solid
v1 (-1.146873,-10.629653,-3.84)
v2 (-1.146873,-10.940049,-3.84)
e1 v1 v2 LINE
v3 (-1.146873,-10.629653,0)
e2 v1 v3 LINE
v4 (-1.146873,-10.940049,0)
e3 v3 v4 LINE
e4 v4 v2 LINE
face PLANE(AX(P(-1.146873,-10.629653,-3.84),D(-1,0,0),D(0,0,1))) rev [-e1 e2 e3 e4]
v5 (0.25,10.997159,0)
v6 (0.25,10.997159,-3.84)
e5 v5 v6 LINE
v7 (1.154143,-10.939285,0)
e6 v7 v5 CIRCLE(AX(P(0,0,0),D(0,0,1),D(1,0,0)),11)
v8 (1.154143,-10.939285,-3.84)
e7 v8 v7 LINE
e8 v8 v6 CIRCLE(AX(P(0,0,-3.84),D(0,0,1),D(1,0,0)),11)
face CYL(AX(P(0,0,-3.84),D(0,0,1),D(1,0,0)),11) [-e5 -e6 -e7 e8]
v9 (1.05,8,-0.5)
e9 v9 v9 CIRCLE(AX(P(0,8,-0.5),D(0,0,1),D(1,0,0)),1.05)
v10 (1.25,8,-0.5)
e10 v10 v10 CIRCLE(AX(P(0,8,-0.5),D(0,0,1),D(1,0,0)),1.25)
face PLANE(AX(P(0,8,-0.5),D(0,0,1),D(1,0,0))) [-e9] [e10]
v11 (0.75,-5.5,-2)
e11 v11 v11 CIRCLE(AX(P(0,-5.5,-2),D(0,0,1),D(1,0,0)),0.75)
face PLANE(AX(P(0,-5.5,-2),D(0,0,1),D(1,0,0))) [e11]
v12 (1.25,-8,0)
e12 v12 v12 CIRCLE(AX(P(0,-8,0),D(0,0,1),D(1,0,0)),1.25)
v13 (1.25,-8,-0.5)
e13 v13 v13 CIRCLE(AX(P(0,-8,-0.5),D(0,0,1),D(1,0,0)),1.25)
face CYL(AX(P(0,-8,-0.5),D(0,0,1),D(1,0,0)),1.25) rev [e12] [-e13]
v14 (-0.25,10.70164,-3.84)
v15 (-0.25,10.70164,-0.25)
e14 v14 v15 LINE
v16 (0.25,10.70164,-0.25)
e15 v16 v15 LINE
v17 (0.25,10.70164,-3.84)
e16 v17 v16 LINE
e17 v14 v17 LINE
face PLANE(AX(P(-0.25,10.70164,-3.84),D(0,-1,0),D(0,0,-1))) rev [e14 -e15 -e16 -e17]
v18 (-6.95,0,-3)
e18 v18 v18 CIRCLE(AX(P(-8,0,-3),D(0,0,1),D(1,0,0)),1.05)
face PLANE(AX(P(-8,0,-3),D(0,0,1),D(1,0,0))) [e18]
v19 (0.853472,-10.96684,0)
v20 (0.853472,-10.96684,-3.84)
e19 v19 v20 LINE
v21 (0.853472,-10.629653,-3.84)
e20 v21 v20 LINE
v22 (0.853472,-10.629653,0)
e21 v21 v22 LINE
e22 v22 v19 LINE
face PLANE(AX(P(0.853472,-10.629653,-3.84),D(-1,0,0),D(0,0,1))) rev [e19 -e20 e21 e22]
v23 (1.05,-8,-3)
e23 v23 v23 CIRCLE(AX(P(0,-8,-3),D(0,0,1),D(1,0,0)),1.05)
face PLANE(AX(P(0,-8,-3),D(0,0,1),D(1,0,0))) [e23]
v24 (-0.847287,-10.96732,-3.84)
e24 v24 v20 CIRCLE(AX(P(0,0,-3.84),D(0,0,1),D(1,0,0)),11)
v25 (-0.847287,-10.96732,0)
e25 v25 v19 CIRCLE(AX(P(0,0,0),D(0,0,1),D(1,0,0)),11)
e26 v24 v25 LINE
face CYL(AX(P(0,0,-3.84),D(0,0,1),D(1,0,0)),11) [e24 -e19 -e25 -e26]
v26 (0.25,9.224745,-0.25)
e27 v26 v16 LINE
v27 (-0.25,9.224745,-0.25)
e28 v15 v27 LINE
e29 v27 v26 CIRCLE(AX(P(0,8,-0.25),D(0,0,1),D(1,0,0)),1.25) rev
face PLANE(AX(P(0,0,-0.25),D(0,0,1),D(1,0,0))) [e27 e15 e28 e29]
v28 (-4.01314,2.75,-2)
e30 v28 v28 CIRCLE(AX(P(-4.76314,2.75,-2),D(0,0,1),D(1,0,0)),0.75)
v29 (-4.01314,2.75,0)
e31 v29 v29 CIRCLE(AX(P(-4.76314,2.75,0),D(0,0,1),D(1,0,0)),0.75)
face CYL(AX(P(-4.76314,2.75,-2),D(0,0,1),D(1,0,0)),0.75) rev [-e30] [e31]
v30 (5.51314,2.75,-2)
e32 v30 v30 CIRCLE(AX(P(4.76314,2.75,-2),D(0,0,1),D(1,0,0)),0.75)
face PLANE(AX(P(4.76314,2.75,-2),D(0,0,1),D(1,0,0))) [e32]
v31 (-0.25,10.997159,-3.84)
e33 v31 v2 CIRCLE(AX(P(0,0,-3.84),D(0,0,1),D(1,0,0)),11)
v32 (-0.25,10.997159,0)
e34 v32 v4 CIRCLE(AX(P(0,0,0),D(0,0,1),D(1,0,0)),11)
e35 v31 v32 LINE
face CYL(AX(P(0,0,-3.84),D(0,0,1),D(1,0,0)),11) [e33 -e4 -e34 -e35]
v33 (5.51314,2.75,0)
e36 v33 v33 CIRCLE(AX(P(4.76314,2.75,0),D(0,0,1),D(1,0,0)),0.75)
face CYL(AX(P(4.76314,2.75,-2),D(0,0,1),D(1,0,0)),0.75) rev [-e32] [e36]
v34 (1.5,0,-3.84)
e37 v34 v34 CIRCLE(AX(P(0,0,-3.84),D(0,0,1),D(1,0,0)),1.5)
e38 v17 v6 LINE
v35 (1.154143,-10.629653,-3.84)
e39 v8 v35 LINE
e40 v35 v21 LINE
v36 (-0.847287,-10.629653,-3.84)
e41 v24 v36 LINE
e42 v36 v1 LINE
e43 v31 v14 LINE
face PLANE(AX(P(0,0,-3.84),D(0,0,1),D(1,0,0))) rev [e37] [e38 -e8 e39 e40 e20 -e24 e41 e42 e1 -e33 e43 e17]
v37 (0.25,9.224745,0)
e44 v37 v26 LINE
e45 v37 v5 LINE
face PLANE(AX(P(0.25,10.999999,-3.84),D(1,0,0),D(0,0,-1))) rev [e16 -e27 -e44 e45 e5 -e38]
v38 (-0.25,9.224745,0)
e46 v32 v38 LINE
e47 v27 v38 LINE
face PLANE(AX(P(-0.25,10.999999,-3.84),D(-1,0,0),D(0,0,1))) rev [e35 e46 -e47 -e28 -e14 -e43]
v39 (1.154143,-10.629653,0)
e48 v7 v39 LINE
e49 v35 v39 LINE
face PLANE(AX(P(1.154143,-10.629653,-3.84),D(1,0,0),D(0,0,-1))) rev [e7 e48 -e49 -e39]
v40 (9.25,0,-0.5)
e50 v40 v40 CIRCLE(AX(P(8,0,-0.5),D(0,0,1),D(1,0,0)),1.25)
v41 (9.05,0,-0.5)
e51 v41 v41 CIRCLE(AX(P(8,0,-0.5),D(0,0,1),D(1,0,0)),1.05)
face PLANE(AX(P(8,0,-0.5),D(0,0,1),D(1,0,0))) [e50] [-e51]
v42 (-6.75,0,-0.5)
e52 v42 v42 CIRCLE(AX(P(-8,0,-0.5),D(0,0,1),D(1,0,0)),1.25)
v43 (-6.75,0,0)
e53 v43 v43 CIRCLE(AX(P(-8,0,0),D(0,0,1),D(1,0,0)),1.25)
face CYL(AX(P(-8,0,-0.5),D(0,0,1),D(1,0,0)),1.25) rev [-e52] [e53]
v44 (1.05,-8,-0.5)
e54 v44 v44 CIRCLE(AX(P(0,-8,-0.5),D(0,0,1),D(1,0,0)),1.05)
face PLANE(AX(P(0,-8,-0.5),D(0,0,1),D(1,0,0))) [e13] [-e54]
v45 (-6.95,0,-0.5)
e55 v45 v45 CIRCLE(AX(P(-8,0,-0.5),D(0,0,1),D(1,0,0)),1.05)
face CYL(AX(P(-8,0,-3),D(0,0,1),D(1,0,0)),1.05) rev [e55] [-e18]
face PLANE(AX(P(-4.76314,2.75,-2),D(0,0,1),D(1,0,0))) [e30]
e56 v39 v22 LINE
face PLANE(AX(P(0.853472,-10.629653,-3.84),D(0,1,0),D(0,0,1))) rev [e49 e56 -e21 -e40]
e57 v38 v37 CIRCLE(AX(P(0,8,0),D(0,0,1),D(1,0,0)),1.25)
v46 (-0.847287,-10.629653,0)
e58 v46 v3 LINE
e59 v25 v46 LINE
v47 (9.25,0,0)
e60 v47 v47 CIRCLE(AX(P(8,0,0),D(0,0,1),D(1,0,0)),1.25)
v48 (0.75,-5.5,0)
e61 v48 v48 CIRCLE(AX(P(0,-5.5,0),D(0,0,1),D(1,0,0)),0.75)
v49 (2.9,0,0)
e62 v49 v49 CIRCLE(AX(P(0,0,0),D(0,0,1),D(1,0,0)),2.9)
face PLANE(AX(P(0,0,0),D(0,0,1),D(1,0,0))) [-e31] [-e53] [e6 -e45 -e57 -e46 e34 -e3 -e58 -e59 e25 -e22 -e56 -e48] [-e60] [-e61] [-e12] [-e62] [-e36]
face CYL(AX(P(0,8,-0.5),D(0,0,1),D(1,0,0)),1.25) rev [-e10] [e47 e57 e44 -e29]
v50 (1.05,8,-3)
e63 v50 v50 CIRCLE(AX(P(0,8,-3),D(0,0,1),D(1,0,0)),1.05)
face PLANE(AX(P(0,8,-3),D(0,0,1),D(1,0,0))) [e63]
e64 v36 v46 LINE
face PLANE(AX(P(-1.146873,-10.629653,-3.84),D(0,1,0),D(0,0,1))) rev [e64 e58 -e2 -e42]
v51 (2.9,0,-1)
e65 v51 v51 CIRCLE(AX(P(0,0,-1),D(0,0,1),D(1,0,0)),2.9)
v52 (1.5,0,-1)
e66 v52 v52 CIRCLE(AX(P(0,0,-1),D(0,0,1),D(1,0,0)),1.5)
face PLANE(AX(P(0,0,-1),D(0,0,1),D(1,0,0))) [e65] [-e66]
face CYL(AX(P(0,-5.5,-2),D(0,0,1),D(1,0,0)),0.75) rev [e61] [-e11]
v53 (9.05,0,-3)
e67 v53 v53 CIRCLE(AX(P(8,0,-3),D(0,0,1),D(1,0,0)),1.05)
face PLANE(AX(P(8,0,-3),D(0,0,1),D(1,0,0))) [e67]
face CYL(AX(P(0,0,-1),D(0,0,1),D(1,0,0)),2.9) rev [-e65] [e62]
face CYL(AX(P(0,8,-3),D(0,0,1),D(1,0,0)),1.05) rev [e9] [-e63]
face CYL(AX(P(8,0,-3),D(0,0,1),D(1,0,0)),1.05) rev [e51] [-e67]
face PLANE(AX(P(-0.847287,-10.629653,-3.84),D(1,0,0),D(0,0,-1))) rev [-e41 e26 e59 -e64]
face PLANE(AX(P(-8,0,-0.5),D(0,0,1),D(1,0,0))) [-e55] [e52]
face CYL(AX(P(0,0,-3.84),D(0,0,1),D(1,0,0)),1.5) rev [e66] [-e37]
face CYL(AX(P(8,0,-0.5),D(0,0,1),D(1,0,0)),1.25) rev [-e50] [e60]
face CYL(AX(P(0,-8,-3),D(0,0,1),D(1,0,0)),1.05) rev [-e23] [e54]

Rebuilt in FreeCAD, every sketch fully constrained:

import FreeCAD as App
import Part
import Sketcher

doc = App.newDocument("Part")
body = doc.addObject("PartDesign::Body", "Body")

# Sketch on XY plane
sketch1 = body.newObject("Sketcher::SketchObject", "Sketch")
sketch1.AttachmentSupport = (doc.getObject("XY_Plane"), [""])
sketch1.MapMode = "FlatFace"
sketch1.addGeometry(Part.Circle(App.Vector(0, 0, 0), App.Vector(0, 0, 1), 11), False)
sketch1.addConstraint([
    Sketcher.Constraint("Coincident", 0, 3, -1, 1),
    Sketcher.Constraint("Diameter", 0, 22.0),
])
pad1 = body.newObject("PartDesign::Pad", "Pad")
pad1.Profile = sketch1
pad1.Length = 3.84
pad1.Reversed = True

# Sketch on XY plane
sketch2 = body.newObject("Sketcher::SketchObject", "Sketch001")
sketch2.AttachmentSupport = (doc.getObject("XY_Plane"), [""])
sketch2.MapMode = "FlatFace"
sketch2.addGeometry(Part.Circle(App.Vector(0, 0, 0), App.Vector(0, 0, 1), 1.5), False)
sketch2.addConstraint([
    Sketcher.Constraint("Coincident", 0, 3, -1, 1),
    Sketcher.Constraint("Diameter", 0, 3.0),
])
pocket1 = body.newObject("PartDesign::Pocket", "Pocket")
pocket1.Profile = sketch2
pocket1.Length = 3.84

# Sketch on XY plane
sketch3 = body.newObject("Sketcher::SketchObject", "Sketch002")
sketch3.AttachmentSupport = (doc.getObject("XY_Plane"), [""])
sketch3.MapMode = "FlatFace"
sketch3.addGeometry([
    Part.Circle(App.Vector(0, 0, 0), App.Vector(0, 0, 1), 2.9),
    Part.Circle(App.Vector(0, 0, 0), App.Vector(0, 0, 1), 1.5),
], False)
sketch3.addConstraint([
    Sketcher.Constraint("Coincident", 0, 3, -1, 1),
    Sketcher.Constraint("Coincident", 1, 3, -1, 1),
    Sketcher.Constraint("Diameter", 1, 3.0),
    Sketcher.Constraint("Diameter", 0, 5.8),
])
pocket2 = body.newObject("PartDesign::Pocket", "Pocket001")
pocket2.Profile = sketch3
pocket2.Length = 1

# Sketch on XY plane
sketch4 = body.newObject("Sketcher::SketchObject", "Sketch003")
sketch4.AttachmentSupport = (doc.getObject("XY_Plane"), [""])
sketch4.MapMode = "FlatFace"
sketch4.addGeometry([
    Part.Circle(App.Vector(-4.8, 2.8, 0), App.Vector(0, 0, 1), 0.8),
    Part.Circle(App.Vector(4.8, 2.8, 0), App.Vector(0, 0, 1), 0.8),
    Part.Circle(App.Vector(0, -5.5, 0), App.Vector(0, 0, 1), 0.8),
], False)
sketch4.addConstraint([
    Sketcher.Constraint("Equal", 0, 1),
    Sketcher.Constraint("Equal", 1, 2),
    Sketcher.Constraint("Symmetric", 0, 3, 1, 3, -2),
    Sketcher.Constraint("PointOnObject", 2, 3, -2),
    Sketcher.Constraint("Diameter", 0, 1.5),
    Sketcher.Constraint("DistanceY", 2, 3, -1, 1, 5.5),
    Sketcher.Constraint("DistanceY", -1, 1, 0, 3, 2.75),
    Sketcher.Constraint("DistanceX", 0, 3, -1, 1, 4.76314),
])
pocket3 = body.newObject("PartDesign::Pocket", "Pocket002")
pocket3.Profile = sketch4
pocket3.Length = 2

# Sketch on XY plane
sketch5 = body.newObject("Sketcher::SketchObject", "Sketch004")
sketch5.AttachmentSupport = (doc.getObject("XY_Plane"), [""])
sketch5.MapMode = "FlatFace"
sketch5.addGeometry([
    Part.Circle(App.Vector(-8, 0, 0), App.Vector(0, 0, 1), 1.1),
    Part.Circle(App.Vector(0, -8, 0), App.Vector(0, 0, 1), 1.1),
    Part.Circle(App.Vector(8, 0, 0), App.Vector(0, 0, 1), 1.1),
    Part.Circle(App.Vector(0, 8, 0), App.Vector(0, 0, 1), 1.1),
], False)
sketch5.addConstraint([
    Sketcher.Constraint("Equal", 0, 1),
    Sketcher.Constraint("Equal", 1, 2),
    Sketcher.Constraint("Equal", 2, 3),
    Sketcher.Constraint("Symmetric", 0, 3, 2, 3, -1, 1),
    Sketcher.Constraint("Symmetric", 1, 3, 3, 3, -1, 1),
    Sketcher.Constraint("PointOnObject", 0, 3, -1),
    Sketcher.Constraint("PointOnObject", 1, 3, -2),
    Sketcher.Constraint("Diameter", 0, 2.1),
    Sketcher.Constraint("DistanceX", 0, 3, -1, 1, 8.0),
    Sketcher.Constraint("DistanceY", 1, 3, -1, 1, 8.0),
])
pocket4 = body.newObject("PartDesign::Pocket", "Pocket003")
pocket4.Profile = sketch5
pocket4.Length = 3

# Sketch on XY plane
sketch6 = body.newObject("Sketcher::SketchObject", "Sketch005")
sketch6.AttachmentSupport = (doc.getObject("XY_Plane"), [""])
sketch6.MapMode = "FlatFace"
sketch6.addGeometry([
    Part.Circle(App.Vector(-8, 0, 0), App.Vector(0, 0, 1), 1.2),  # 0
    Part.Circle(App.Vector(-8, 0, 0), App.Vector(0, 0, 1), 1.1),  # 1
    Part.Circle(App.Vector(0, -8, 0), App.Vector(0, 0, 1), 1.2),  # 2
    Part.Circle(App.Vector(0, -8, 0), App.Vector(0, 0, 1), 1.1),  # 3
    Part.Circle(App.Vector(8, 0, 0), App.Vector(0, 0, 1), 1.2),  # 4
    Part.Circle(App.Vector(8, 0, 0), App.Vector(0, 0, 1), 1.1),  # 5
    Part.Circle(App.Vector(0, 8, 0), App.Vector(0, 0, 1), 1.2),  # 6
    Part.Circle(App.Vector(0, 8, 0), App.Vector(0, 0, 1), 1.1),  # 7
], False)
sketch6.addConstraint([
    Sketcher.Constraint("Coincident", 1, 3, 0, 3),
    Sketcher.Constraint("Coincident", 3, 3, 2, 3),
    Sketcher.Constraint("Coincident", 5, 3, 4, 3),
    Sketcher.Constraint("Coincident", 7, 3, 6, 3),
    Sketcher.Constraint("Equal", 0, 2),
    Sketcher.Constraint("Equal", 1, 3),
    Sketcher.Constraint("Equal", 2, 4),
    Sketcher.Constraint("Equal", 3, 5),
    Sketcher.Constraint("Equal", 4, 6),
    Sketcher.Constraint("Equal", 5, 7),
    Sketcher.Constraint("Symmetric", 0, 3, 4, 3, -1, 1),
    Sketcher.Constraint("Symmetric", 2, 3, 6, 3, -1, 1),
    Sketcher.Constraint("PointOnObject", 0, 3, -1),
    Sketcher.Constraint("PointOnObject", 2, 3, -2),
    Sketcher.Constraint("Diameter", 0, 2.5),
    Sketcher.Constraint("Diameter", 1, 2.1),
    Sketcher.Constraint("DistanceX", 0, 3, -1, 1, 8.0),
    Sketcher.Constraint("DistanceY", 2, 3, -1, 1, 8.0),
])
pocket5 = body.newObject("PartDesign::Pocket", "Pocket004")
pocket5.Profile = sketch6
pocket5.Length = 0.5

# Sketch on XY plane
sketch7 = body.newObject("Sketcher::SketchObject", "Sketch006")
sketch7.AttachmentSupport = (doc.getObject("XY_Plane"), [""])
sketch7.MapMode = "FlatFace"
sketch7.addGeometry([
    Part.LineSegment(App.Vector(-1.15, -10.63, 0), App.Vector(-1.15, -11, 0)),  # 0
    Part.LineSegment(App.Vector(-1.15, -11, 0), App.Vector(-0.85, -11, 0)),  # 1
    Part.LineSegment(App.Vector(-0.85, -11, 0), App.Vector(-0.85, -10.63, 0)),  # 2
    Part.LineSegment(App.Vector(-0.85, -10.63, 0), App.Vector(-1.15, -10.63, 0)),  # 3
    Part.LineSegment(App.Vector(0.85, -10.63, 0), App.Vector(0.85, -11, 0)),  # 4
    Part.LineSegment(App.Vector(0.85, -11, 0), App.Vector(1.15, -11, 0)),  # 5
    Part.LineSegment(App.Vector(1.15, -11, 0), App.Vector(1.15, -10.63, 0)),  # 6
    Part.LineSegment(App.Vector(1.15, -10.63, 0), App.Vector(0.85, -10.63, 0)),  # 7
], False)
sketch7.addConstraint([
    Sketcher.Constraint("Coincident", 0, 2, 1, 1),
    Sketcher.Constraint("Coincident", 1, 2, 2, 1),
    Sketcher.Constraint("Coincident", 2, 2, 3, 1),
    Sketcher.Constraint("Coincident", 3, 2, 0, 1),
    Sketcher.Constraint("Coincident", 4, 2, 5, 1),
    Sketcher.Constraint("Coincident", 5, 2, 6, 1),
    Sketcher.Constraint("Coincident", 6, 2, 7, 1),
    Sketcher.Constraint("Coincident", 7, 2, 4, 1),
    Sketcher.Constraint("Vertical", 0),
    Sketcher.Constraint("Horizontal", 1),
    Sketcher.Constraint("Vertical", 2),
    Sketcher.Constraint("Horizontal", 3),
    Sketcher.Constraint("Vertical", 4),
    Sketcher.Constraint("Horizontal", 5),
    Sketcher.Constraint("Vertical", 6),
    Sketcher.Constraint("Horizontal", 7),
    Sketcher.Constraint("Horizontal", 1, 2, 4, 2),
    Sketcher.Constraint("Horizontal", 3, 2, 6, 2),
    Sketcher.Constraint("DistanceY", 0, 2, -1, 1, 11.0),
    Sketcher.Constraint("DistanceX", 5, 1, 5, 2, 0.300671),
    Sketcher.Constraint("DistanceX", 1, 1, 1, 2, 0.299587),
    Sketcher.Constraint("DistanceY", 0, 2, 0, 1, 0.370347),
    Sketcher.Constraint("DistanceX", -1, 1, 4, 2, 0.853472),
    Sketcher.Constraint("DistanceX", 1, 2, 4, 2, 1.700759),
])
pocket6 = body.newObject("PartDesign::Pocket", "Pocket005")
pocket6.Profile = sketch7
pocket6.Length = 3.84

# Sketch on XY plane
sketch8 = body.newObject("Sketcher::SketchObject", "Sketch007")
sketch8.AttachmentSupport = (doc.getObject("XY_Plane"), [""])
sketch8.MapMode = "FlatFace"
sketch8.addGeometry([
    Part.LineSegment(App.Vector(-0.25, 11, 0), App.Vector(-0.25, 10.7, 0)),
    Part.LineSegment(App.Vector(-0.25, 10.7, 0), App.Vector(0.25, 10.7, 0)),
    Part.LineSegment(App.Vector(0.25, 10.7, 0), App.Vector(0.25, 11, 0)),
    Part.LineSegment(App.Vector(0.25, 11, 0), App.Vector(-0.25, 11, 0)),
], False)
sketch8.addConstraint([
    Sketcher.Constraint("Coincident", 0, 2, 1, 1),
    Sketcher.Constraint("Coincident", 1, 2, 2, 1),
    Sketcher.Constraint("Coincident", 2, 2, 3, 1),
    Sketcher.Constraint("Coincident", 3, 2, 0, 1),
    Sketcher.Constraint("Vertical", 0),
    Sketcher.Constraint("Horizontal", 1),
    Sketcher.Constraint("Vertical", 2),
    Sketcher.Constraint("Horizontal", 3),
    Sketcher.Constraint("DistanceX", 1, 1, 1, 2, 0.5),
    Sketcher.Constraint("DistanceY", -1, 1, 2, 2, 10.999999),
    Sketcher.Constraint("DistanceX", 0, 2, -1, 1, 0.25),
    Sketcher.Constraint("DistanceY", 0, 2, 0, 1, 0.298359),
])
pocket7 = body.newObject("PartDesign::Pocket", "Pocket006")
pocket7.Profile = sketch8
pocket7.Length = 3.84

# Sketch on XY plane
sketch9 = body.newObject("Sketcher::SketchObject", "Sketch008")
sketch9.AttachmentSupport = (doc.getObject("XY_Plane"), [""])
sketch9.MapMode = "FlatFace"
sketch9.addGeometry([
    Part.LineSegment(App.Vector(-0.2, 10.7, 0), App.Vector(-0.2, 9.1, 0)),
    Part.LineSegment(App.Vector(-0.2, 9.1, 0), App.Vector(0.2, 9.1, 0)),
    Part.LineSegment(App.Vector(0.2, 9.1, 0), App.Vector(0.2, 10.7, 0)),
    Part.LineSegment(App.Vector(0.2, 10.7, 0), App.Vector(-0.2, 10.7, 0)),
], False)
sketch9.addConstraint([
    Sketcher.Constraint("Coincident", 0, 2, 1, 1),
    Sketcher.Constraint("Coincident", 1, 2, 2, 1),
    Sketcher.Constraint("Coincident", 2, 2, 3, 1),
    Sketcher.Constraint("Coincident", 3, 2, 0, 1),
    Sketcher.Constraint("Vertical", 0),
    Sketcher.Constraint("Horizontal", 1),
    Sketcher.Constraint("Vertical", 2),
    Sketcher.Constraint("Horizontal", 3),
    Sketcher.Constraint("DistanceX", 1, 1, 1, 2, 0.5),
    Sketcher.Constraint("DistanceX", 0, 2, -1, 1, 0.25),
    Sketcher.Constraint("DistanceY", 0, 2, 0, 1, 1.600137),
    Sketcher.Constraint("DistanceY", -1, 1, 2, 2, 10.70164),
])
pocket8 = body.newObject("PartDesign::Pocket", "Pocket007")
pocket8.Profile = sketch9
pocket8.Length = 0.25

doc.recompute()
